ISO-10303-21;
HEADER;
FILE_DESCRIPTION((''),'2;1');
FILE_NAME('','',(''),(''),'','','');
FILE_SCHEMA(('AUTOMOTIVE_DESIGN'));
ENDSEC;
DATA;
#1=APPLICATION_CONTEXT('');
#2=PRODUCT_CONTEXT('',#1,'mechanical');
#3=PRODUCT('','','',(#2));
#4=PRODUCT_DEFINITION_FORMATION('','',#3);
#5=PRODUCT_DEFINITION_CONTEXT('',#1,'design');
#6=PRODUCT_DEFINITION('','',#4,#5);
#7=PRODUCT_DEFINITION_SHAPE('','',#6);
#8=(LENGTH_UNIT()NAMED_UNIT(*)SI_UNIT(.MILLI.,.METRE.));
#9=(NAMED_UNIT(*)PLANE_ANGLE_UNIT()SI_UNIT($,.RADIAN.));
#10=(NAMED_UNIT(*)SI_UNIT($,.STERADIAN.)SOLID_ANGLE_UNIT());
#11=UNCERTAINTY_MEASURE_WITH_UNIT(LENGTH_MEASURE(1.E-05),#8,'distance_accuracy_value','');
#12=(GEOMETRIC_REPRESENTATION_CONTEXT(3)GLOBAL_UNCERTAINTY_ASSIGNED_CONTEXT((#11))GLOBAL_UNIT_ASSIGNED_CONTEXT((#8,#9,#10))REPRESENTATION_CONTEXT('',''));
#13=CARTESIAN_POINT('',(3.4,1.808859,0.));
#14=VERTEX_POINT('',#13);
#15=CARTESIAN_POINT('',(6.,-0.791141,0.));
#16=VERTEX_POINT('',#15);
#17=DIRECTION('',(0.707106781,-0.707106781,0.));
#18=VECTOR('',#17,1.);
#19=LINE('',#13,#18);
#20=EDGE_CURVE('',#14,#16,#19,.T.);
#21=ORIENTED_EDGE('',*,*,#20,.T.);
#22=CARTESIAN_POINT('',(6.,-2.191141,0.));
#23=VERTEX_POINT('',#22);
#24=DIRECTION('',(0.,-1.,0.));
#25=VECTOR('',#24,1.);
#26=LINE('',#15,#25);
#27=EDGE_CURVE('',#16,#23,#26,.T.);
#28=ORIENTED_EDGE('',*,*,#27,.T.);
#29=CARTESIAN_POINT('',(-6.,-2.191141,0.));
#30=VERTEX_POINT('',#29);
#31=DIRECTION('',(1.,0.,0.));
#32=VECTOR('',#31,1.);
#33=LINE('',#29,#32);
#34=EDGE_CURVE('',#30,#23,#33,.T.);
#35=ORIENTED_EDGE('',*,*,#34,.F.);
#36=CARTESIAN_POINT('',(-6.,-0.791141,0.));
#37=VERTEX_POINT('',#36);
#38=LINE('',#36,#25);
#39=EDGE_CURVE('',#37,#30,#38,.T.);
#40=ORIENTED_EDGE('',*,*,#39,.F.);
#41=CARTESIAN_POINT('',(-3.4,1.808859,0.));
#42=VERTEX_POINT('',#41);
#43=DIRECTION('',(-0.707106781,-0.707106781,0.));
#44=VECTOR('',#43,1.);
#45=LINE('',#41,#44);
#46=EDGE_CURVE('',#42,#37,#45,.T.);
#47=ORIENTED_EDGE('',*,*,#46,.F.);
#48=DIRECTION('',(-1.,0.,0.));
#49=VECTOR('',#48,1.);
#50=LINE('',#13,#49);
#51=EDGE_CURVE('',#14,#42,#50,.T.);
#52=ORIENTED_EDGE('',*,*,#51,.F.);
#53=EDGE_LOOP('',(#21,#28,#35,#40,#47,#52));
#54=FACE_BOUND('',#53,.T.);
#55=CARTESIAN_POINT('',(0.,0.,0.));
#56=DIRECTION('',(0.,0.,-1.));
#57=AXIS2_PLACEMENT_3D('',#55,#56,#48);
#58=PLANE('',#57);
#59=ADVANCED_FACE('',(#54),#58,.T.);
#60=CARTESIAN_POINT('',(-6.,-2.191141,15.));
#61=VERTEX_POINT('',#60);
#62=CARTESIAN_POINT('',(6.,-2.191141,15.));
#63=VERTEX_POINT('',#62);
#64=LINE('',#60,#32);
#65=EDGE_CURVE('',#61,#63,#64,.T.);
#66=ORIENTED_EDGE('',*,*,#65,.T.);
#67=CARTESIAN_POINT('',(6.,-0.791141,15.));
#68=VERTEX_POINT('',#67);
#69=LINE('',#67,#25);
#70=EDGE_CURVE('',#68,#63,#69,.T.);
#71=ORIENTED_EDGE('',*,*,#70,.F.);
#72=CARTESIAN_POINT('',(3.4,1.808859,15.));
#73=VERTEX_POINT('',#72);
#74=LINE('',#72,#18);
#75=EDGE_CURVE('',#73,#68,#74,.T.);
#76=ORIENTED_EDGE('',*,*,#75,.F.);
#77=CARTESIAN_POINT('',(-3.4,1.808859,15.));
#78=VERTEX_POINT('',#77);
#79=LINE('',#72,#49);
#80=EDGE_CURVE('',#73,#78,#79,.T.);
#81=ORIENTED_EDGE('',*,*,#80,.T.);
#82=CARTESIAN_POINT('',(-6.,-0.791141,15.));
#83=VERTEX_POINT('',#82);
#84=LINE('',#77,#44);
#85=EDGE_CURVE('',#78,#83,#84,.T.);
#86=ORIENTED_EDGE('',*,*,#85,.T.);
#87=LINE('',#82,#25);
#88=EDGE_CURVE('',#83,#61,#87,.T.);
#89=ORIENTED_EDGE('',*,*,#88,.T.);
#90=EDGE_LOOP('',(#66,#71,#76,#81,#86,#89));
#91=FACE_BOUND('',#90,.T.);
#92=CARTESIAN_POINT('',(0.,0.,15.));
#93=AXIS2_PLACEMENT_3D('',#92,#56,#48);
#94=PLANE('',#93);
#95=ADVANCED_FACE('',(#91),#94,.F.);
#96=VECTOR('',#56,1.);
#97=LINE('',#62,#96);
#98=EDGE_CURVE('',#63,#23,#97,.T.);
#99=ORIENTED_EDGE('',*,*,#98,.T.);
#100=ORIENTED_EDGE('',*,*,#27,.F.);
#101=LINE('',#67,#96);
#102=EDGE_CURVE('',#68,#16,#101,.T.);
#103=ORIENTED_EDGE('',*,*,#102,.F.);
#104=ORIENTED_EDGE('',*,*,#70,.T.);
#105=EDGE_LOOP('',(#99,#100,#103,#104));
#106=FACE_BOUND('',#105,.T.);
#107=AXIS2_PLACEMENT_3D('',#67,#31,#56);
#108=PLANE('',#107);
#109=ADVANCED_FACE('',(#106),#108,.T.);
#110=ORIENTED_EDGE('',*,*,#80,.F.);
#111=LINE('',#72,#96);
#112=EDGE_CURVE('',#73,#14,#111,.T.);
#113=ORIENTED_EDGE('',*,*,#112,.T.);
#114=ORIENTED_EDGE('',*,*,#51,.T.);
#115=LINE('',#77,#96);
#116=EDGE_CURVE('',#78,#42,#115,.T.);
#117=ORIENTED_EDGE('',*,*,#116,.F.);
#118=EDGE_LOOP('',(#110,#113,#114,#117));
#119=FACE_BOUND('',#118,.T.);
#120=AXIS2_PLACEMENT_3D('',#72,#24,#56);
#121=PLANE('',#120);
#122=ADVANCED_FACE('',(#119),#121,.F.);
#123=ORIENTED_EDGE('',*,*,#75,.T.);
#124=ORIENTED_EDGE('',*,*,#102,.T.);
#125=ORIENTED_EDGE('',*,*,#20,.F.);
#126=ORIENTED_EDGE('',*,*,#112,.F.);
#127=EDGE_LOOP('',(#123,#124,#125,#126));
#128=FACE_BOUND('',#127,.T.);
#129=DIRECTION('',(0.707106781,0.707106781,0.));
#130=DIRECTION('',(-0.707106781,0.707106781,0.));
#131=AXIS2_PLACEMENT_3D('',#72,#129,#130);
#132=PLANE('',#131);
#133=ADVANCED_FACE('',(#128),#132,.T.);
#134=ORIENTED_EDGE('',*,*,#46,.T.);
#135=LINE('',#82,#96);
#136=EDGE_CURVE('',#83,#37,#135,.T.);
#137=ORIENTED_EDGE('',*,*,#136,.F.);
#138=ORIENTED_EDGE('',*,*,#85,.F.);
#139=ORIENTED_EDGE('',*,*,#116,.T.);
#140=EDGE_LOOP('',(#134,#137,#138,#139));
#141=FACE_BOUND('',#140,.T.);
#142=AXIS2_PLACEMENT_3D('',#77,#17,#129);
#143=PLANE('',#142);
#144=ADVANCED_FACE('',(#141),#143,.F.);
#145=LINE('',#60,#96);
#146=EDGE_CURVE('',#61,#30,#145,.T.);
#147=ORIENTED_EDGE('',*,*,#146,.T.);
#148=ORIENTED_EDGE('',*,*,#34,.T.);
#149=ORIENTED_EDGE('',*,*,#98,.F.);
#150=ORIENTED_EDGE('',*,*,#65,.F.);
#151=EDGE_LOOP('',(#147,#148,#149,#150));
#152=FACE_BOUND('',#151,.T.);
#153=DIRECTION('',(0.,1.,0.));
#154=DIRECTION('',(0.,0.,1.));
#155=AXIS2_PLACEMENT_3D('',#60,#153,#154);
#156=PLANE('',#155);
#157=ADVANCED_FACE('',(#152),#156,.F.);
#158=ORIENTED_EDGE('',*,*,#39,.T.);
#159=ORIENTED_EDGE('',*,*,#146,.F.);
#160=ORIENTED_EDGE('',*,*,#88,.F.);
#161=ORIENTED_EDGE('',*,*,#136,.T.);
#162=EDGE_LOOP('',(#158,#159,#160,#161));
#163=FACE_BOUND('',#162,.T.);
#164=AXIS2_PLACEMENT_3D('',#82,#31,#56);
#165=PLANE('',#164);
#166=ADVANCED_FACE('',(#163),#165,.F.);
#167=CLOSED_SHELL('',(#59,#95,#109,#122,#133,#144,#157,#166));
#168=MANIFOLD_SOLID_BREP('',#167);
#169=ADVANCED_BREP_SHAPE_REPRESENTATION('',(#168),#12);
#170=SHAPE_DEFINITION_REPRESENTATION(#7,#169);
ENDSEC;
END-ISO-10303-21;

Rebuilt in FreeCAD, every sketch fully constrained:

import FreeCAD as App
import Part
import Sketcher

V = App.Vector
Q = App.Units.Quantity


def add_polygon(sketch, points):
    """Adds a closed chain of lines whose ends are joined by coincident constraints."""
    first, n = sketch.GeometryCount, len(points)
    for a, b in zip(points, points[1:] + points[:1]):
        sketch.addGeometry(Part.LineSegment(App.Vector(*a, 0), App.Vector(*b, 0)), False)
    for i in range(n):
        sketch.addConstraint(Sketcher.Constraint("Coincident", first + i, 2, first + (i + 1) % n, 1))

doc = App.newDocument("Part")
body = doc.addObject("PartDesign::Body", "Body")

# Sketch on XY plane
sketch1 = body.newObject("Sketcher::SketchObject", "Sketch")
sketch1.AttachmentSupport = (doc.getObject("XY_Plane"), [""])
sketch1.MapMode = "FlatFace"
add_polygon(sketch1, [(3.4, 1.8), (-3.4, 1.8), (-6, -0.8), (-6, -2.2), (6, -2.2), (6, -0.8)])  # lines 0-5
sketch1.addConstraint([
    Sketcher.Constraint("Horizontal", 0),
    Sketcher.Constraint("Vertical", 2),
    Sketcher.Constraint("Horizontal", 3),
    Sketcher.Constraint("Vertical", 4),
    Sketcher.Constraint("Symmetric", 1, 2, 4, 2, -2),
    Sketcher.Constraint("Perpendicular", 1, 5),
    Sketcher.Constraint("Equal", 1, 5),
    Sketcher.Constraint("DistanceX", 3, 1, 3, 2, Q("12 mm")),
    Sketcher.Constraint("DistanceX", 0, 2, 0, 1, Q("6.8 mm")),
    Sketcher.Constraint("DistanceY", 2, 2, 2, 1, Q("1.4 mm")),
    Sketcher.Constraint("DistanceY", -1, 1, 0, 2, Q("1.808859 mm")),
])
pad1 = body.newObject("PartDesign::Pad", "Pad")
pad1.Profile = sketch1
pad1.Length = 15

doc.recompute()
